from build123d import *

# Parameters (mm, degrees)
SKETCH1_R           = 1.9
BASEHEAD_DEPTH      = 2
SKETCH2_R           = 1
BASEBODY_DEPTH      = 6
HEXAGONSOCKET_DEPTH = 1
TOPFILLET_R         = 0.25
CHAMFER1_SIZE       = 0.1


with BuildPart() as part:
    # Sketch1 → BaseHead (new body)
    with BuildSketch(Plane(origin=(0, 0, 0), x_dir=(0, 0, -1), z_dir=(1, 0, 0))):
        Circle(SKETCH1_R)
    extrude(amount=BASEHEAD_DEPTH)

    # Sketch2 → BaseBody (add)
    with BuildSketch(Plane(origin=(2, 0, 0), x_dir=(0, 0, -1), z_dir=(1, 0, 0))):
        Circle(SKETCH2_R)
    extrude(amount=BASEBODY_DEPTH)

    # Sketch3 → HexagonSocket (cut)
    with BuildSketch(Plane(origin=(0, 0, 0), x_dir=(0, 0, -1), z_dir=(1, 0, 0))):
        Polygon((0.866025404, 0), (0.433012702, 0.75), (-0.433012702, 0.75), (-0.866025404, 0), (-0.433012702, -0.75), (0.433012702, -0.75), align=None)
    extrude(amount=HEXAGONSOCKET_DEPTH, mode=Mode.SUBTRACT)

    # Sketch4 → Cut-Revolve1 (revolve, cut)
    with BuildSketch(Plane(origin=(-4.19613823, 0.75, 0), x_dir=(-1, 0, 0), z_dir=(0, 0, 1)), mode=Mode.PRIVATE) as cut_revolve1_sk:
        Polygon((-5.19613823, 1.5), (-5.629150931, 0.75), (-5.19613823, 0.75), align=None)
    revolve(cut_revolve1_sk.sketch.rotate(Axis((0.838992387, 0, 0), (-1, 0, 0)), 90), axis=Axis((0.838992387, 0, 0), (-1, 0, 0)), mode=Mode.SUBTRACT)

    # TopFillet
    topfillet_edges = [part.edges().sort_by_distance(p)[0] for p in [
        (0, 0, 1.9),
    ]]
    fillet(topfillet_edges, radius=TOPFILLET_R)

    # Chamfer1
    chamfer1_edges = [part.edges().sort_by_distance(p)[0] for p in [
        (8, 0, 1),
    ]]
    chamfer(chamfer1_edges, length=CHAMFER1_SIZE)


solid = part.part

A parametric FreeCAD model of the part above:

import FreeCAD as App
import Part
import Sketcher

V = App.Vector
Q = App.Units.Quantity


def edges_at(feature, points):
    """Names of the edges that pass closest to the given points."""
    edges = feature.Shape.Edges
    near = lambda p: min(range(len(edges)), key=lambda i: edges[i].distToShape(Part.Vertex(*p))[0])
    return sorted({f"Edge{near(p) + 1}" for p in points})


def add_polygon(sketch, points):
    """Adds a closed chain of lines whose ends are joined by coincident constraints."""
    first, n = sketch.GeometryCount, len(points)
    for a, b in zip(points, points[1:] + points[:1]):
        sketch.addGeometry(Part.LineSegment(App.Vector(*a, 0), App.Vector(*b, 0)), False)
    for i in range(n):
        sketch.addConstraint(Sketcher.Constraint("Coincident", first + i, 2, first + (i + 1) % n, 1))

doc = App.newDocument("Part")
body = doc.addObject("PartDesign::Body", "Body")

# Sketch on YZ plane
sketch1 = body.newObject("Sketcher::SketchObject", "Sketch")
sketch1.AttachmentSupport = (doc.getObject("YZ_Plane"), [""])
sketch1.MapMode = "FlatFace"
sketch1.addGeometry(Part.Circle(V(0, 0, 0), V(0, 0, 1), 1.9), False)
sketch1.addConstraint([
    Sketcher.Constraint("Coincident", 0, 3, -1, 1),
    Sketcher.Constraint("Diameter", 0, 3.8),
])
pad1 = body.newObject("PartDesign::Pad", "Pad")
pad1.Profile = sketch1
pad1.Length = 2

# Sketch on YZ plane
sketch2 = body.newObject("Sketcher::SketchObject", "Sketch001")
sketch2.AttachmentSupport = (doc.getObject("YZ_Plane"), [""])
sketch2.MapMode = "FlatFace"
sketch2.AttachmentOffset = App.Placement(V(0, 0, 2), App.Rotation())
sketch2.addGeometry(Part.Circle(V(0, 0, 0), V(0, 0, 1), 1), False)
sketch2.addConstraint([
    Sketcher.Constraint("Coincident", 0, 3, -1, 1),
    Sketcher.Constraint("Diameter", 0, 2.0),
])
pad2 = body.newObject("PartDesign::Pad", "Pad001")
pad2.Profile = sketch2
pad2.Length = 6

# Sketch on YZ plane
sketch3 = body.newObject("Sketcher::SketchObject", "Sketch002")
sketch3.AttachmentSupport = (doc.getObject("YZ_Plane"), [""])
sketch3.MapMode = "FlatFace"
add_polygon(sketch3, [(0, -0.9), (0.8, -0.4), (0.8, 0.4), (0, 0.9), (-0.8, 0.4), (-0.8, -0.4)])  # lines 0-5
sketch3.addConstraint([
    Sketcher.Constraint("Vertical", 1),
    Sketcher.Constraint("Vertical", 4),
    Sketcher.Constraint("Symmetric", 0, 2, 3, 2, -1, 1),
    Sketcher.Constraint("Symmetric", 2, 2, 5, 2, -1, 1),
    Sketcher.Constraint("PointOnObject", 2, 2, -2),
    Sketcher.Constraint("Parallel", 2, 5),
    Sketcher.Constraint("Horizontal", 1, 2, 3, 2),
    Sketcher.Constraint("Angle", 0, Q("30 deg")),
    Sketcher.Constraint("DistanceX", 3, 2, 1, 2, 1.5),
    Sketcher.Constraint("DistanceY", 1, 1, 1, 2, 0.866025),
])
pocket1 = body.newObject("PartDesign::Pocket", "Pocket")
pocket1.Profile = sketch3
pocket1.Length = 1
pocket1.Reversed = True

# Sketch on XY plane
sketch4 = body.newObject("Sketcher::SketchObject", "Sketch003")
sketch4.AttachmentSupport = (doc.getObject("XY_Plane"), [""])
sketch4.MapMode = "FlatFace"
add_polygon(sketch4, [(1, -0.75), (1.43, 0), (1, 0)])  # lines 0-2
sketch4.addConstraint([
    Sketcher.Constraint("Horizontal", 1),
    Sketcher.Constraint("Vertical", 2),
    Sketcher.Constraint("PointOnObject", 0, 2, -1),
    Sketcher.Constraint("Angle", 0, Q("60 deg")),
    Sketcher.Constraint("DistanceX", -1, 1, 1, 2, 1.0),
    Sketcher.Constraint("DistanceY", 2, 2, 2, 1, 0.75),
])
groove = body.newObject("PartDesign::Groove", "Groove")
groove.Profile = sketch4
groove.ReferenceAxis = (sketch4, ["H_Axis"])
groove.Angle = 360
doc.recompute()

fillet = body.newObject("PartDesign::Fillet", "Fillet")
fillet.Base = (groove, edges_at(groove, [(0, 0, 1.9)]))
fillet.Radius = 0.25
doc.recompute()

chamfer = body.newObject("PartDesign::Chamfer", "Chamfer")
chamfer.Base = (fillet, edges_at(fillet, [(8, 0, 1)]))
chamfer.Size = 0.1

doc.recompute()
